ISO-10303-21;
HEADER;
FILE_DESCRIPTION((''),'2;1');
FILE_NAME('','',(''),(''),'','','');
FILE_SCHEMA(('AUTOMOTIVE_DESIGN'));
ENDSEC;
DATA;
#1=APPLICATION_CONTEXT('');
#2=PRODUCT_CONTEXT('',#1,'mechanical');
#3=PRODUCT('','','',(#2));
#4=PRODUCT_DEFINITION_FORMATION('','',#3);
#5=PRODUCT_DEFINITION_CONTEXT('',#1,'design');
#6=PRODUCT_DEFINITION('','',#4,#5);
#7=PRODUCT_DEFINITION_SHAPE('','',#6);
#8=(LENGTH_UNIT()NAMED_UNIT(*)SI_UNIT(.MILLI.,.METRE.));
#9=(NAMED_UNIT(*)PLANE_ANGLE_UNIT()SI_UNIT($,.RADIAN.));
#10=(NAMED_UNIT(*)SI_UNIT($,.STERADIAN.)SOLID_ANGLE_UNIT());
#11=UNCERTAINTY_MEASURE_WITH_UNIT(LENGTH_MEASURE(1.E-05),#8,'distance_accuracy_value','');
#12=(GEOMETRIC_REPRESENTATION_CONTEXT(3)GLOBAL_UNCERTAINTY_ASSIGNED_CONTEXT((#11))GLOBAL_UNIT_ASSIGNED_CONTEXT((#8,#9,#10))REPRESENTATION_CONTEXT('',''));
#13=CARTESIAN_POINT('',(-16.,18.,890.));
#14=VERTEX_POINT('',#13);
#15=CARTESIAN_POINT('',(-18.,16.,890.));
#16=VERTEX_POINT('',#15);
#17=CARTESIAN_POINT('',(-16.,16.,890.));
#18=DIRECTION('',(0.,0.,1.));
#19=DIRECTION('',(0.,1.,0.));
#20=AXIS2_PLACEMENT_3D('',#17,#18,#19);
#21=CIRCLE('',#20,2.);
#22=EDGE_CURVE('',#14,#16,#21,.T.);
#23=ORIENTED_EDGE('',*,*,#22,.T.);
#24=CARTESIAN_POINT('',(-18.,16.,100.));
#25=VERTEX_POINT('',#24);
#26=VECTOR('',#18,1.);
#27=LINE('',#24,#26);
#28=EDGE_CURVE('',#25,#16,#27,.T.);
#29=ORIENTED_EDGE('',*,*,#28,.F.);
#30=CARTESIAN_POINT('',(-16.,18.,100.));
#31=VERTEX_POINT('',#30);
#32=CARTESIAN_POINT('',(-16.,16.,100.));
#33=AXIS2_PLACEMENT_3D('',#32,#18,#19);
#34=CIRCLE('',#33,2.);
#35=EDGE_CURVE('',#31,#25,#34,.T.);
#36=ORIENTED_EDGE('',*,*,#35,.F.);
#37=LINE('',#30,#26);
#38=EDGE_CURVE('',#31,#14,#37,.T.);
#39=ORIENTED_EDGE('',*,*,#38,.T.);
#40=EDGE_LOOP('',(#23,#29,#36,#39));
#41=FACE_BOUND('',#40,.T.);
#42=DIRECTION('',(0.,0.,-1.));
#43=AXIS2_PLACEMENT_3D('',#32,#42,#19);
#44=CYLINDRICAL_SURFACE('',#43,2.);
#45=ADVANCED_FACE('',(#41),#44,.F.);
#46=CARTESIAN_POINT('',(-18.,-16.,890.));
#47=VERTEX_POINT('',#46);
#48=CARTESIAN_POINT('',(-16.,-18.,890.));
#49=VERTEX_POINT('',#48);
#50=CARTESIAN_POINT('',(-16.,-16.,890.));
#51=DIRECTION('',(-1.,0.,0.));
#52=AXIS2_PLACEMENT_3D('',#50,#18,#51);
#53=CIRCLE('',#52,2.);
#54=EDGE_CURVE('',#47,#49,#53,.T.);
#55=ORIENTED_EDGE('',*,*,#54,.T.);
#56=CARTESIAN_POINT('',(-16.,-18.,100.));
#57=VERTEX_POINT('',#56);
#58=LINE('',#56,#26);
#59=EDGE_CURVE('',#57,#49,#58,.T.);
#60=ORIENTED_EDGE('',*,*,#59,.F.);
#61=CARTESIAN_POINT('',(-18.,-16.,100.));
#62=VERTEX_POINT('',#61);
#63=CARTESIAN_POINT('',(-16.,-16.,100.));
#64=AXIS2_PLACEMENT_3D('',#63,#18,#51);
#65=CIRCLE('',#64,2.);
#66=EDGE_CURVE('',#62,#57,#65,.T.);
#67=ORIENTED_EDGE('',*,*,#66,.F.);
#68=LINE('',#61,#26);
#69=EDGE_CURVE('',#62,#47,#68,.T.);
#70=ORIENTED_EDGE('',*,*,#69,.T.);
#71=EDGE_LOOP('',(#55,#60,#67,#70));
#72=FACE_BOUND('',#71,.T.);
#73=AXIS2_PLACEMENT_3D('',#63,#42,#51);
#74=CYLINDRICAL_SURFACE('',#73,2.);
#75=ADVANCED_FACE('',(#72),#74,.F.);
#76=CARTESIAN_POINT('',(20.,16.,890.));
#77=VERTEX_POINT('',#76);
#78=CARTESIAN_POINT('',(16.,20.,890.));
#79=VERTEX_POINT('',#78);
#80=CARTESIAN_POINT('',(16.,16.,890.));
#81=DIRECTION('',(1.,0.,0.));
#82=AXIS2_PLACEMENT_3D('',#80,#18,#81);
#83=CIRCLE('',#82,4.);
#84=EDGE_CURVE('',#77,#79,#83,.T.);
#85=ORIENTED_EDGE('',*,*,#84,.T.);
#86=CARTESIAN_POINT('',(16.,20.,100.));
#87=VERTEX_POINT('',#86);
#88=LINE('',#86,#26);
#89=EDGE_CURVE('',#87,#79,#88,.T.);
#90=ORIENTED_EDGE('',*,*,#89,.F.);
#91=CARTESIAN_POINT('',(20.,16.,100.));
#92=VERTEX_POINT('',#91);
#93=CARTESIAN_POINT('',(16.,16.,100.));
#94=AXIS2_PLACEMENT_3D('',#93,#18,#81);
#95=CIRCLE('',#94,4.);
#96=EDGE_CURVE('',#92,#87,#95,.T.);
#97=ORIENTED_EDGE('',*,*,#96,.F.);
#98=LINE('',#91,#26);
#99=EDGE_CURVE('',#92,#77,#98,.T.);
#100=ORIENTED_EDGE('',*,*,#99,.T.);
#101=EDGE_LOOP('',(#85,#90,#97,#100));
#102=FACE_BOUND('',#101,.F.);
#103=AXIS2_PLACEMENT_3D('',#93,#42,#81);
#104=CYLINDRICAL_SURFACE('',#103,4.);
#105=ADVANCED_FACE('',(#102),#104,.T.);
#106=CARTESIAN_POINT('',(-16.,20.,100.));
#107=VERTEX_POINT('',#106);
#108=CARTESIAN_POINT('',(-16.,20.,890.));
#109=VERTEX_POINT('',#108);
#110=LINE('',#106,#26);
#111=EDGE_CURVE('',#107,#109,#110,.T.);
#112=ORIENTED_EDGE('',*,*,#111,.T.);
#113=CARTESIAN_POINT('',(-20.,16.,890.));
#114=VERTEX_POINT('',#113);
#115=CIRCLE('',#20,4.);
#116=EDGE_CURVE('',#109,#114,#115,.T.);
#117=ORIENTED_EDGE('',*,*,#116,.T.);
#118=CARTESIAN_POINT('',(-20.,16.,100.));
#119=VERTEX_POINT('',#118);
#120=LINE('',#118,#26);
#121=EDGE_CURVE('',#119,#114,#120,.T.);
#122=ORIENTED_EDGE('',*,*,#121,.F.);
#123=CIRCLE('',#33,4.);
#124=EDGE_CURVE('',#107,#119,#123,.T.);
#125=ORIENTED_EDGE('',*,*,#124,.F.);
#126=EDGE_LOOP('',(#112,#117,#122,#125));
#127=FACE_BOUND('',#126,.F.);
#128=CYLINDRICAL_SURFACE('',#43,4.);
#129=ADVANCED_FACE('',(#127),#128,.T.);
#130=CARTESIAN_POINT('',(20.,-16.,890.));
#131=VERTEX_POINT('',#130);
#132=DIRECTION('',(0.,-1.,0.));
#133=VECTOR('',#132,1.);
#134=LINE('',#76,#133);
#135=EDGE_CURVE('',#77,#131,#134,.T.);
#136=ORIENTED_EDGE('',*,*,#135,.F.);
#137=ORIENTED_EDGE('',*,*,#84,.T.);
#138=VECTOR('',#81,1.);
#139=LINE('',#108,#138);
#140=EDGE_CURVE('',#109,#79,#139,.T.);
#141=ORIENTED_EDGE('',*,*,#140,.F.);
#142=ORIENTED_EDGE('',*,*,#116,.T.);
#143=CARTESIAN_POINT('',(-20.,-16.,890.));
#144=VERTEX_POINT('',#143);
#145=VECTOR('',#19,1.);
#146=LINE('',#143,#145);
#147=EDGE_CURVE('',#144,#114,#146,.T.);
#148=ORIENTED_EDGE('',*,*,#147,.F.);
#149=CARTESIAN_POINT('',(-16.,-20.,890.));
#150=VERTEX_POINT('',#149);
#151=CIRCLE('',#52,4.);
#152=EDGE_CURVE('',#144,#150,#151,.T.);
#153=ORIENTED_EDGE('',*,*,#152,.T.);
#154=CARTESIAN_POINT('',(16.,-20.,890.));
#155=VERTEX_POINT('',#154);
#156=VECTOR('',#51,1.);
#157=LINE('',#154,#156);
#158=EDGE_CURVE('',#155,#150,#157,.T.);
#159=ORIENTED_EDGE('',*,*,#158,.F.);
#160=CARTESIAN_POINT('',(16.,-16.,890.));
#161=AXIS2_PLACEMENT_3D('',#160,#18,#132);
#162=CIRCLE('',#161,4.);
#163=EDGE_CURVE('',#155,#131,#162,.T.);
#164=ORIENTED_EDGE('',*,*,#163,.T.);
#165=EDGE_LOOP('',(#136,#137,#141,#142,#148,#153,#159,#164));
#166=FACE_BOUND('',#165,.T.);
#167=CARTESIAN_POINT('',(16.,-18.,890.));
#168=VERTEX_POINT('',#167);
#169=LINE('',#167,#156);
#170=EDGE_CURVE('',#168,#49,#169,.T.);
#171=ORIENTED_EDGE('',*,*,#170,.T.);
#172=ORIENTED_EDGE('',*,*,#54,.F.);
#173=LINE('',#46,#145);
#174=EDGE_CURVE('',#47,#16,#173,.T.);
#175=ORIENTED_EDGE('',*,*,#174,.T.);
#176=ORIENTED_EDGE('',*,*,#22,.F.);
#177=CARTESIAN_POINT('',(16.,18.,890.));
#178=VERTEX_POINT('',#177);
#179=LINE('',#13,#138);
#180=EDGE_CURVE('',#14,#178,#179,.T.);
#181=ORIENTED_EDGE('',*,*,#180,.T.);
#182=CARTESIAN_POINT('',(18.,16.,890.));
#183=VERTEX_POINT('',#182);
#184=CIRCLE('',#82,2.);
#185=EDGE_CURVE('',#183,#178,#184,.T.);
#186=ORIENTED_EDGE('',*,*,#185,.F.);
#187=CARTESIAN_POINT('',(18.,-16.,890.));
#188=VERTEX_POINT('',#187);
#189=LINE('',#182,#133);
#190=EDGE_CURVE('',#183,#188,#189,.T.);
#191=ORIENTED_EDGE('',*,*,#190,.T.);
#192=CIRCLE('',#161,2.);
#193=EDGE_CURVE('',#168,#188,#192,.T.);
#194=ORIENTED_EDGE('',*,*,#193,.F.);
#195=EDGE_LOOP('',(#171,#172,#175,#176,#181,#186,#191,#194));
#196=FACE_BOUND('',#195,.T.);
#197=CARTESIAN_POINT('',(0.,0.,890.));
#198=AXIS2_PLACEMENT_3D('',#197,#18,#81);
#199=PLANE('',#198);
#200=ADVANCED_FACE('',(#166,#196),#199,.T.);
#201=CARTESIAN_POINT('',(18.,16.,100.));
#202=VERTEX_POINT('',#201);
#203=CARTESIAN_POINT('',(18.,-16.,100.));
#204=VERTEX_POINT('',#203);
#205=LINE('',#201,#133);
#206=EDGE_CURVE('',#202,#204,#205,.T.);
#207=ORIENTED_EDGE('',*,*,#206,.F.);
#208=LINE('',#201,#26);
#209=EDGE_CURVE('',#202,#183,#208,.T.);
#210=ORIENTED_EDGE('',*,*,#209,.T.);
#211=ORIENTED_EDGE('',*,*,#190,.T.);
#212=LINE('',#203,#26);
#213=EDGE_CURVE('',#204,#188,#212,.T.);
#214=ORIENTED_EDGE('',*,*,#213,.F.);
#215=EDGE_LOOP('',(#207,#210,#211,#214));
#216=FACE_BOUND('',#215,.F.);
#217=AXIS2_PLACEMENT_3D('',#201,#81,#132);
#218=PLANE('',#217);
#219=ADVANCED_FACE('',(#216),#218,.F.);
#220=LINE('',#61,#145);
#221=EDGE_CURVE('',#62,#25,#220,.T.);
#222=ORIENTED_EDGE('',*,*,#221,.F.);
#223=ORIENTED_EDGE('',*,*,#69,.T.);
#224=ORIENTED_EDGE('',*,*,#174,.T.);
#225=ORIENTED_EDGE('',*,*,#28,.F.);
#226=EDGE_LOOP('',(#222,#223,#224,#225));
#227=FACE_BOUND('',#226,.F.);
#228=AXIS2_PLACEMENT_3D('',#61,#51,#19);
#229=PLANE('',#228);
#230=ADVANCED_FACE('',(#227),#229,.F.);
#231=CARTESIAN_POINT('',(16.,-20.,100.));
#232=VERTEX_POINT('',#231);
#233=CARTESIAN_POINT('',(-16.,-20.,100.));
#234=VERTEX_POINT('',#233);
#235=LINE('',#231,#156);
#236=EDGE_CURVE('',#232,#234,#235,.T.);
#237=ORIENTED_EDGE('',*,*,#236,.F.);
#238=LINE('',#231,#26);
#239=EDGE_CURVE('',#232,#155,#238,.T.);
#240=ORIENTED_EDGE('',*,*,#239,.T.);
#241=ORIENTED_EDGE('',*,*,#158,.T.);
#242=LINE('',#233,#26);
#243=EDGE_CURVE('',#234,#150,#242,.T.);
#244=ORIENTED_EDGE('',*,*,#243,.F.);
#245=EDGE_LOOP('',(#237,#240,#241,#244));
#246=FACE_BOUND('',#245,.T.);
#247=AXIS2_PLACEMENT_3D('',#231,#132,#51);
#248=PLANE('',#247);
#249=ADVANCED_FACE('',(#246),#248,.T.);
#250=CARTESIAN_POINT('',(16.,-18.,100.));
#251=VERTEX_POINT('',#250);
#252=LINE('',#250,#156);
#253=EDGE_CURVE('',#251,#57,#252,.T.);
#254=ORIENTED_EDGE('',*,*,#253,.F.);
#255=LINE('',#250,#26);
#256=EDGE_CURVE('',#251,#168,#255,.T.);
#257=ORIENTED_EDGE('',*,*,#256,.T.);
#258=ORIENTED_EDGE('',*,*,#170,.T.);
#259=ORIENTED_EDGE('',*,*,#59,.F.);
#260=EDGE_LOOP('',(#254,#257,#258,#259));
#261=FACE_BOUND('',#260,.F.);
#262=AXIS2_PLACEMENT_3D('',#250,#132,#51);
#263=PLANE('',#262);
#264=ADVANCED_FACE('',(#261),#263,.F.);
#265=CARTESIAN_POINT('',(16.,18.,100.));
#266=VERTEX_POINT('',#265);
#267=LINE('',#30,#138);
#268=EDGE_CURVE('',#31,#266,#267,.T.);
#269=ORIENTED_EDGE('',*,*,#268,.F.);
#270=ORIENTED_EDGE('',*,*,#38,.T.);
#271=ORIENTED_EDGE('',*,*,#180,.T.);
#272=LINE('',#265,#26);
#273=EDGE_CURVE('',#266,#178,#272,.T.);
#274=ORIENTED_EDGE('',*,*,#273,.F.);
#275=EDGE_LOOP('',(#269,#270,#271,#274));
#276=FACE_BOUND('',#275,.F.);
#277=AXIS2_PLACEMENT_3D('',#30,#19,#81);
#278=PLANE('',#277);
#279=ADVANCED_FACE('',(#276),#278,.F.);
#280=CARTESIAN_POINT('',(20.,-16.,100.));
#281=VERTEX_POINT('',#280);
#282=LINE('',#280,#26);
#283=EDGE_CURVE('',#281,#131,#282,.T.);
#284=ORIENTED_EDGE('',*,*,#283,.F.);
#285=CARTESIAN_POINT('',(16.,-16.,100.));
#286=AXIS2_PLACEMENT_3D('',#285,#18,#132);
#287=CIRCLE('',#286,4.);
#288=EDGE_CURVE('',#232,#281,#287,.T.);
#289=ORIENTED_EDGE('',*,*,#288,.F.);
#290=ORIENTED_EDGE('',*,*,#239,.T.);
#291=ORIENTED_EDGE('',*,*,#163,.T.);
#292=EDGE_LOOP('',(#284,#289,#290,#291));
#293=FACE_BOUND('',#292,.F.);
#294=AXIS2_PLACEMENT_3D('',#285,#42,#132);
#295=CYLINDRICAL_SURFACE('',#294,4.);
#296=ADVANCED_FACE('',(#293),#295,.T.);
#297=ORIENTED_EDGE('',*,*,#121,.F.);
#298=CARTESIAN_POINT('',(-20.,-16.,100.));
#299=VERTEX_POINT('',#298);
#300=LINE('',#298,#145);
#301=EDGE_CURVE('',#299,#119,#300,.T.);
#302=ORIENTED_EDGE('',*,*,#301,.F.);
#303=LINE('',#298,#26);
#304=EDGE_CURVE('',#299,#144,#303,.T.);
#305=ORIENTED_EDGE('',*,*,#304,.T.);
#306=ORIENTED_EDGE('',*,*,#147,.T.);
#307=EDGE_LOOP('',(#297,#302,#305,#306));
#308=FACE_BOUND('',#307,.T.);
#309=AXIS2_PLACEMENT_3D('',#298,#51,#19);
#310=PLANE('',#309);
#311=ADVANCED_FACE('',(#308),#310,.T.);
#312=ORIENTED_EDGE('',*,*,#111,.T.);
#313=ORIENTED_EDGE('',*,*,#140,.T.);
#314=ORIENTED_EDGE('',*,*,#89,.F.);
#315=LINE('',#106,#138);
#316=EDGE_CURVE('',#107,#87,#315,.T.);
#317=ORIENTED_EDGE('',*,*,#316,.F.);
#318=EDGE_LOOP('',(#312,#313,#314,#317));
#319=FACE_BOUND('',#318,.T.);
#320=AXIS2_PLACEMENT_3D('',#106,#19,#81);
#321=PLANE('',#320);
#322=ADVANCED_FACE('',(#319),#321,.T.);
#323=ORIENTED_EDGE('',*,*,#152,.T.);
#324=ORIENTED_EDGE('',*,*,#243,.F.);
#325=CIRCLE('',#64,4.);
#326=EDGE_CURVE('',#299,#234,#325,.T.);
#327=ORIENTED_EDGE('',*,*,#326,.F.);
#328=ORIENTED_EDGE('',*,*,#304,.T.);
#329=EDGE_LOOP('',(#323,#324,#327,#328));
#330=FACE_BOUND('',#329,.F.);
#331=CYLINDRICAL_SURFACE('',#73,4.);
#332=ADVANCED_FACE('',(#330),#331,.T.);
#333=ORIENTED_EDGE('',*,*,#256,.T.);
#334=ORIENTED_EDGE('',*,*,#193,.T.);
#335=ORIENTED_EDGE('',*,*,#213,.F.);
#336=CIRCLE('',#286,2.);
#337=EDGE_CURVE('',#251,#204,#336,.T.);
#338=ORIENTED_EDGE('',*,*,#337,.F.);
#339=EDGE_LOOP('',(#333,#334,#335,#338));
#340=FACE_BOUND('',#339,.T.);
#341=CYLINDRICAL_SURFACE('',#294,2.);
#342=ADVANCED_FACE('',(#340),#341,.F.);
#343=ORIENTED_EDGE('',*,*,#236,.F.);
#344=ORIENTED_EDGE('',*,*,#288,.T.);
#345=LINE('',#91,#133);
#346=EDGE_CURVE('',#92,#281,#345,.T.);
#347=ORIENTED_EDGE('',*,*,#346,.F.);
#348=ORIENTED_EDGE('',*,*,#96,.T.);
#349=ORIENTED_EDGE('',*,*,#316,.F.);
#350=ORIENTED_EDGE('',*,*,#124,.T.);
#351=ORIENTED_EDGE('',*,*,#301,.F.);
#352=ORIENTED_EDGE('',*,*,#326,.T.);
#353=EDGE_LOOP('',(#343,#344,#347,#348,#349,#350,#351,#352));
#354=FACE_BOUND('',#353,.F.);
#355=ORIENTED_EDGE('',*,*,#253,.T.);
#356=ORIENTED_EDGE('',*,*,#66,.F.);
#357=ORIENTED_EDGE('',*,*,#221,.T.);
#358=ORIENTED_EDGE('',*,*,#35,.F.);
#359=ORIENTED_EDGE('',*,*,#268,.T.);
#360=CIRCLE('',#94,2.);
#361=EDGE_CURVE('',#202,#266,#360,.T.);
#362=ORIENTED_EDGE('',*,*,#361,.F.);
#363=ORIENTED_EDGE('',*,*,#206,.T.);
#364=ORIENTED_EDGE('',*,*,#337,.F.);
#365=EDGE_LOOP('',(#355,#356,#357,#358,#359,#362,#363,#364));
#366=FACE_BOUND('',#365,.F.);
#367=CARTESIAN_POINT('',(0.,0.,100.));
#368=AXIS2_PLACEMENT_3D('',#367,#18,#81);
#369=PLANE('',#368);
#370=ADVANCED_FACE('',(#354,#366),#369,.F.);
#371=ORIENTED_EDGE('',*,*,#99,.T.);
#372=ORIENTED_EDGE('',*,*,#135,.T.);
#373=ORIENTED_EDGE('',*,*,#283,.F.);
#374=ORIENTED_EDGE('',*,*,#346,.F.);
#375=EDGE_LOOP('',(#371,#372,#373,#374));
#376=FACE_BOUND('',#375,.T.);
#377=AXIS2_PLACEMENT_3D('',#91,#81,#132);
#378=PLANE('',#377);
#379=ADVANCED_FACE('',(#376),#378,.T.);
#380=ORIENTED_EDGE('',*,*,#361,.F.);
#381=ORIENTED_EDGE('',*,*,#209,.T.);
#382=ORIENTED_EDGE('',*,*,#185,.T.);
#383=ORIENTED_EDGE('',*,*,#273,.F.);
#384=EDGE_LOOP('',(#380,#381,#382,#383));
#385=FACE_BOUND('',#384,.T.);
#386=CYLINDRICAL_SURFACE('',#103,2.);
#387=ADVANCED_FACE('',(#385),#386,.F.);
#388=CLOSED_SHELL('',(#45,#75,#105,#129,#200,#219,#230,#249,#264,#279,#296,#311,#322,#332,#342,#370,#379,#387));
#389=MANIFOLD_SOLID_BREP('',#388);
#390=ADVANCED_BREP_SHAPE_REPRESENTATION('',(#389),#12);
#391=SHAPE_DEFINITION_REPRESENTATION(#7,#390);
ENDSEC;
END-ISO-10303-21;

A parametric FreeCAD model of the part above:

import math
import FreeCAD as App
import Part
import Sketcher

V = App.Vector
Q = App.Units.Quantity

doc = App.newDocument("Part")
body = doc.addObject("PartDesign::Body", "Body")

# Sketch on XY plane
sketch1 = body.newObject("Sketcher::SketchObject", "Sketch")
sketch1.AttachmentSupport = (doc.getObject("XY_Plane"), [""])
sketch1.MapMode = "FlatFace"
sketch1.AttachmentOffset = App.Placement(V(0, 0, 100), App.Rotation())
sketch1.addGeometry([
    Part.LineSegment(V(-20, 16, 0), V(-20, -16, 0)),  # 0
    Part.ArcOfCircle(Part.Circle(V(-16, -16, 0), V(0, 0, 1), 4), math.radians(180), math.radians(270)),  # 1
    Part.LineSegment(V(-16, -20, 0), V(16, -20, 0)),  # 2
    Part.ArcOfCircle(Part.Circle(V(16, -16, 0), V(0, 0, 1), 4), math.radians(-90), math.radians(0)),  # 3
    Part.LineSegment(V(20, -16, 0), V(20, 16, 0)),  # 4
    Part.ArcOfCircle(Part.Circle(V(16, 16, 0), V(0, 0, 1), 4), math.radians(0), math.radians(90)),  # 5
    Part.LineSegment(V(16, 20, 0), V(-16, 20, 0)),  # 6
    Part.ArcOfCircle(Part.Circle(V(-16, 16, 0), V(0, 0, 1), 4), math.radians(90), math.radians(180)),  # 7
    Part.ArcOfCircle(Part.Circle(V(-16, 16, 0), V(0, 0, 1), 2), math.radians(90), math.radians(180)),  # 8
    Part.LineSegment(V(-16, 18, 0), V(16, 18, 0)),  # 9
    Part.ArcOfCircle(Part.Circle(V(16, 16, 0), V(0, 0, 1), 2), math.radians(0), math.radians(90)),  # 10
    Part.LineSegment(V(18, 16, 0), V(18, -16, 0)),  # 11
    Part.ArcOfCircle(Part.Circle(V(16, -16, 0), V(0, 0, 1), 2), math.radians(-90), math.radians(0)),  # 12
    Part.LineSegment(V(16, -18, 0), V(-16, -18, 0)),  # 13
    Part.ArcOfCircle(Part.Circle(V(-16, -16, 0), V(0, 0, 1), 2), math.radians(180), math.radians(270)),  # 14
    Part.LineSegment(V(-18, -16, 0), V(-18, 16, 0)),  # 15
], False)
sketch1.addConstraint([
    Sketcher.Constraint("Tangent", 0, 2, 1, 1),
    Sketcher.Constraint("Tangent", 1, 2, 2, 1),
    Sketcher.Constraint("Tangent", 2, 2, 3, 1),
    Sketcher.Constraint("Tangent", 3, 2, 4, 1),
    Sketcher.Constraint("Tangent", 4, 2, 5, 1),
    Sketcher.Constraint("Tangent", 5, 2, 6, 1),
    Sketcher.Constraint("Tangent", 6, 2, 7, 1),
    Sketcher.Constraint("Tangent", 7, 2, 0, 1),
    Sketcher.Constraint("Tangent", 8, 1, 9, 1),
    Sketcher.Constraint("Tangent", 9, 2, 10, 2),
    Sketcher.Constraint("Tangent", 10, 1, 11, 1),
    Sketcher.Constraint("Tangent", 11, 2, 12, 2),
    Sketcher.Constraint("Tangent", 12, 1, 13, 1),
    Sketcher.Constraint("Tangent", 13, 2, 14, 2),
    Sketcher.Constraint("Tangent", 14, 1, 15, 1),
    Sketcher.Constraint("Tangent", 15, 2, 8, 2),
    Sketcher.Constraint("Vertical", 0),
    Sketcher.Constraint("Horizontal", 2),
    Sketcher.Constraint("Vertical", 4),
    Sketcher.Constraint("Horizontal", 6),
    Sketcher.Constraint("Horizontal", 9),
    Sketcher.Constraint("Vertical", 11),
    Sketcher.Constraint("Horizontal", 13),
    Sketcher.Constraint("Vertical", 15),
    Sketcher.Constraint("Coincident", 8, 3, 7, 3),
    Sketcher.Constraint("Coincident", 10, 3, 5, 3),
    Sketcher.Constraint("Coincident", 12, 3, 3, 3),
    Sketcher.Constraint("Equal", 1, 3),
    Sketcher.Constraint("Equal", 3, 5),
    Sketcher.Constraint("Equal", 5, 7),
    Sketcher.Constraint("Equal", 12, 14),
    Sketcher.Constraint("Symmetric", 1, 3, 5, 3, -1, 1),
    Sketcher.Constraint("Equal", 13, 0),
    Sketcher.Constraint("Radius", 1, Q("4 mm")),
    Sketcher.Constraint("Radius", 8, Q("2 mm")),
    Sketcher.Constraint("DistanceX", 0, 2, -1, 1, Q("20 mm")),
])
pad1 = body.newObject("PartDesign::Pad", "Pad")
pad1.Profile = sketch1
pad1.Length = 790

doc.recompute()
